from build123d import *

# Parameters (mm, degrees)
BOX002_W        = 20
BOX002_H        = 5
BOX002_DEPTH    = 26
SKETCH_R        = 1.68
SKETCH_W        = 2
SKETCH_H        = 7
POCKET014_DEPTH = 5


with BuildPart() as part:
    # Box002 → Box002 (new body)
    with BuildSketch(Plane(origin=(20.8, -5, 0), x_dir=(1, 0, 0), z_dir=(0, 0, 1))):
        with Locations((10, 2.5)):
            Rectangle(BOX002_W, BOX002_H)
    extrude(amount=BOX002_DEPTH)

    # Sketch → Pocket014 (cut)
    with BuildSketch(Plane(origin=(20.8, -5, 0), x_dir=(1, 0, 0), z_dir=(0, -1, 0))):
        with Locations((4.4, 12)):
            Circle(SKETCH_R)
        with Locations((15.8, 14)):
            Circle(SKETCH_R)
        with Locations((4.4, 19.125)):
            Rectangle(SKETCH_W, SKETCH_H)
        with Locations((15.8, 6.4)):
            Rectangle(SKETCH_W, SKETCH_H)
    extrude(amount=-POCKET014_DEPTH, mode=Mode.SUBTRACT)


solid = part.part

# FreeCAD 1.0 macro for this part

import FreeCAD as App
import Part
import Sketcher
from FreeCAD import Vector
Q = App.Units.Quantity


def add_polygon(sketch, points):
    """Adds a closed chain of lines whose ends are joined by coincident constraints."""
    first, n = sketch.GeometryCount, len(points)
    for a, b in zip(points, points[1:] + points[:1]):
        sketch.addGeometry(Part.LineSegment(App.Vector(*a, 0), App.Vector(*b, 0)), False)
    for i in range(n):
        sketch.addConstraint(Sketcher.Constraint("Coincident", first + i, 2, first + (i + 1) % n, 1))

doc = App.newDocument("Part")
body = doc.addObject("PartDesign::Body", "Body")

sketch1 = doc.addObject("Sketcher::SketchObject", "Sketch")
body.addObject(sketch1)
sketch1.AttachmentSupport = (doc.XY_Plane, [""])
sketch1.MapMode = "FlatFace"
add_polygon(sketch1, [(20.8, 0), (20.8, -5), (40.8, -5), (40.8, 0)])
sketch1.addConstraint([
    Sketcher.Constraint("Vertical", 0),
    Sketcher.Constraint("Horizontal", 1),
    Sketcher.Constraint("Vertical", 2),
    Sketcher.Constraint("Horizontal", 3),
    Sketcher.Constraint("PointOnObject", 2, 2, -1),
    Sketcher.Constraint("DistanceX", 1, 1, 1, 2, Q("20 mm")),
    Sketcher.Constraint("DistanceY", 0, 2, 0, 1, Q("5 mm")),
    Sketcher.Constraint("DistanceX", -1, 1, 0, 2, Q("20.8 mm")),
])
pad1 = doc.addObject("PartDesign::Pad", "Pad")
body.addObject(pad1)
pad1.Profile = sketch1
pad1.Length = 26

sketch2 = doc.addObject("Sketcher::SketchObject", "Sketch001")
body.addObject(sketch2)
sketch2.AttachmentSupport = (doc.XZ_Plane, [""])
sketch2.MapMode = "FlatFace"
sketch2.AttachmentOffset = App.Placement(Vector(0, 0, 5), App.Rotation())
sketch2.addGeometry(Part.Circle(Vector(25.2, 12, 0), Vector(0, 0, 1), 1.68), False)
sketch2.addGeometry(Part.Circle(Vector(36.6, 14, 0), Vector(0, 0, 1), 1.68), False)
add_polygon(sketch2, [(24.2, 22.625), (24.2, 15.625), (26.2, 15.625), (26.2, 22.625)])
add_polygon(sketch2, [(35.6, 9.9), (35.6, 2.9), (37.6, 2.9), (37.6, 9.9)])
sketch2.addConstraint([
    Sketcher.Constraint("Vertical", 2),
    Sketcher.Constraint("Horizontal", 3),
    Sketcher.Constraint("Vertical", 4),
    Sketcher.Constraint("Horizontal", 5),
    Sketcher.Constraint("Vertical", 6),
    Sketcher.Constraint("Horizontal", 7),
    Sketcher.Constraint("Vertical", 8),
    Sketcher.Constraint("Horizontal", 9),
    Sketcher.Constraint("Equal", 0, 1),
    Sketcher.Constraint("Equal", 5, 7),
    Sketcher.Constraint("Equal", 4, 6),
    Sketcher.Constraint("Diameter", 0, Q("3.36 mm")),
    Sketcher.Constraint("DistanceX", 3, 1, 3, 2, Q("2 mm")),
    Sketcher.Constraint("DistanceY", 2, 2, 2, 1, Q("7 mm")),
    Sketcher.Constraint("DistanceY", -1, 1, 0, 3, Q("12 mm")),
    Sketcher.Constraint("DistanceY", -1, 1, 1, 3, Q("14 mm")),
    Sketcher.Constraint("DistanceX", 2, 2, 0, 3, Q("1 mm")),
    Sketcher.Constraint("DistanceX", 6, 2, 1, 3, Q("1 mm")),
    Sketcher.Constraint("DistanceX", -1, 1, 0, 3, Q("25.2 mm")),
    Sketcher.Constraint("DistanceX", -1, 1, 1, 3, Q("36.6 mm")),
    Sketcher.Constraint("DistanceY", -1, 1, 6, 2, Q("2.9 mm")),
    Sketcher.Constraint("DistanceY", -1, 1, 2, 2, Q("15.625 mm")),
])
pocket1 = doc.addObject("PartDesign::Pocket", "Pocket")
body.addObject(pocket1)
pocket1.Profile = sketch2
pocket1.Length = 5

doc.recompute()
